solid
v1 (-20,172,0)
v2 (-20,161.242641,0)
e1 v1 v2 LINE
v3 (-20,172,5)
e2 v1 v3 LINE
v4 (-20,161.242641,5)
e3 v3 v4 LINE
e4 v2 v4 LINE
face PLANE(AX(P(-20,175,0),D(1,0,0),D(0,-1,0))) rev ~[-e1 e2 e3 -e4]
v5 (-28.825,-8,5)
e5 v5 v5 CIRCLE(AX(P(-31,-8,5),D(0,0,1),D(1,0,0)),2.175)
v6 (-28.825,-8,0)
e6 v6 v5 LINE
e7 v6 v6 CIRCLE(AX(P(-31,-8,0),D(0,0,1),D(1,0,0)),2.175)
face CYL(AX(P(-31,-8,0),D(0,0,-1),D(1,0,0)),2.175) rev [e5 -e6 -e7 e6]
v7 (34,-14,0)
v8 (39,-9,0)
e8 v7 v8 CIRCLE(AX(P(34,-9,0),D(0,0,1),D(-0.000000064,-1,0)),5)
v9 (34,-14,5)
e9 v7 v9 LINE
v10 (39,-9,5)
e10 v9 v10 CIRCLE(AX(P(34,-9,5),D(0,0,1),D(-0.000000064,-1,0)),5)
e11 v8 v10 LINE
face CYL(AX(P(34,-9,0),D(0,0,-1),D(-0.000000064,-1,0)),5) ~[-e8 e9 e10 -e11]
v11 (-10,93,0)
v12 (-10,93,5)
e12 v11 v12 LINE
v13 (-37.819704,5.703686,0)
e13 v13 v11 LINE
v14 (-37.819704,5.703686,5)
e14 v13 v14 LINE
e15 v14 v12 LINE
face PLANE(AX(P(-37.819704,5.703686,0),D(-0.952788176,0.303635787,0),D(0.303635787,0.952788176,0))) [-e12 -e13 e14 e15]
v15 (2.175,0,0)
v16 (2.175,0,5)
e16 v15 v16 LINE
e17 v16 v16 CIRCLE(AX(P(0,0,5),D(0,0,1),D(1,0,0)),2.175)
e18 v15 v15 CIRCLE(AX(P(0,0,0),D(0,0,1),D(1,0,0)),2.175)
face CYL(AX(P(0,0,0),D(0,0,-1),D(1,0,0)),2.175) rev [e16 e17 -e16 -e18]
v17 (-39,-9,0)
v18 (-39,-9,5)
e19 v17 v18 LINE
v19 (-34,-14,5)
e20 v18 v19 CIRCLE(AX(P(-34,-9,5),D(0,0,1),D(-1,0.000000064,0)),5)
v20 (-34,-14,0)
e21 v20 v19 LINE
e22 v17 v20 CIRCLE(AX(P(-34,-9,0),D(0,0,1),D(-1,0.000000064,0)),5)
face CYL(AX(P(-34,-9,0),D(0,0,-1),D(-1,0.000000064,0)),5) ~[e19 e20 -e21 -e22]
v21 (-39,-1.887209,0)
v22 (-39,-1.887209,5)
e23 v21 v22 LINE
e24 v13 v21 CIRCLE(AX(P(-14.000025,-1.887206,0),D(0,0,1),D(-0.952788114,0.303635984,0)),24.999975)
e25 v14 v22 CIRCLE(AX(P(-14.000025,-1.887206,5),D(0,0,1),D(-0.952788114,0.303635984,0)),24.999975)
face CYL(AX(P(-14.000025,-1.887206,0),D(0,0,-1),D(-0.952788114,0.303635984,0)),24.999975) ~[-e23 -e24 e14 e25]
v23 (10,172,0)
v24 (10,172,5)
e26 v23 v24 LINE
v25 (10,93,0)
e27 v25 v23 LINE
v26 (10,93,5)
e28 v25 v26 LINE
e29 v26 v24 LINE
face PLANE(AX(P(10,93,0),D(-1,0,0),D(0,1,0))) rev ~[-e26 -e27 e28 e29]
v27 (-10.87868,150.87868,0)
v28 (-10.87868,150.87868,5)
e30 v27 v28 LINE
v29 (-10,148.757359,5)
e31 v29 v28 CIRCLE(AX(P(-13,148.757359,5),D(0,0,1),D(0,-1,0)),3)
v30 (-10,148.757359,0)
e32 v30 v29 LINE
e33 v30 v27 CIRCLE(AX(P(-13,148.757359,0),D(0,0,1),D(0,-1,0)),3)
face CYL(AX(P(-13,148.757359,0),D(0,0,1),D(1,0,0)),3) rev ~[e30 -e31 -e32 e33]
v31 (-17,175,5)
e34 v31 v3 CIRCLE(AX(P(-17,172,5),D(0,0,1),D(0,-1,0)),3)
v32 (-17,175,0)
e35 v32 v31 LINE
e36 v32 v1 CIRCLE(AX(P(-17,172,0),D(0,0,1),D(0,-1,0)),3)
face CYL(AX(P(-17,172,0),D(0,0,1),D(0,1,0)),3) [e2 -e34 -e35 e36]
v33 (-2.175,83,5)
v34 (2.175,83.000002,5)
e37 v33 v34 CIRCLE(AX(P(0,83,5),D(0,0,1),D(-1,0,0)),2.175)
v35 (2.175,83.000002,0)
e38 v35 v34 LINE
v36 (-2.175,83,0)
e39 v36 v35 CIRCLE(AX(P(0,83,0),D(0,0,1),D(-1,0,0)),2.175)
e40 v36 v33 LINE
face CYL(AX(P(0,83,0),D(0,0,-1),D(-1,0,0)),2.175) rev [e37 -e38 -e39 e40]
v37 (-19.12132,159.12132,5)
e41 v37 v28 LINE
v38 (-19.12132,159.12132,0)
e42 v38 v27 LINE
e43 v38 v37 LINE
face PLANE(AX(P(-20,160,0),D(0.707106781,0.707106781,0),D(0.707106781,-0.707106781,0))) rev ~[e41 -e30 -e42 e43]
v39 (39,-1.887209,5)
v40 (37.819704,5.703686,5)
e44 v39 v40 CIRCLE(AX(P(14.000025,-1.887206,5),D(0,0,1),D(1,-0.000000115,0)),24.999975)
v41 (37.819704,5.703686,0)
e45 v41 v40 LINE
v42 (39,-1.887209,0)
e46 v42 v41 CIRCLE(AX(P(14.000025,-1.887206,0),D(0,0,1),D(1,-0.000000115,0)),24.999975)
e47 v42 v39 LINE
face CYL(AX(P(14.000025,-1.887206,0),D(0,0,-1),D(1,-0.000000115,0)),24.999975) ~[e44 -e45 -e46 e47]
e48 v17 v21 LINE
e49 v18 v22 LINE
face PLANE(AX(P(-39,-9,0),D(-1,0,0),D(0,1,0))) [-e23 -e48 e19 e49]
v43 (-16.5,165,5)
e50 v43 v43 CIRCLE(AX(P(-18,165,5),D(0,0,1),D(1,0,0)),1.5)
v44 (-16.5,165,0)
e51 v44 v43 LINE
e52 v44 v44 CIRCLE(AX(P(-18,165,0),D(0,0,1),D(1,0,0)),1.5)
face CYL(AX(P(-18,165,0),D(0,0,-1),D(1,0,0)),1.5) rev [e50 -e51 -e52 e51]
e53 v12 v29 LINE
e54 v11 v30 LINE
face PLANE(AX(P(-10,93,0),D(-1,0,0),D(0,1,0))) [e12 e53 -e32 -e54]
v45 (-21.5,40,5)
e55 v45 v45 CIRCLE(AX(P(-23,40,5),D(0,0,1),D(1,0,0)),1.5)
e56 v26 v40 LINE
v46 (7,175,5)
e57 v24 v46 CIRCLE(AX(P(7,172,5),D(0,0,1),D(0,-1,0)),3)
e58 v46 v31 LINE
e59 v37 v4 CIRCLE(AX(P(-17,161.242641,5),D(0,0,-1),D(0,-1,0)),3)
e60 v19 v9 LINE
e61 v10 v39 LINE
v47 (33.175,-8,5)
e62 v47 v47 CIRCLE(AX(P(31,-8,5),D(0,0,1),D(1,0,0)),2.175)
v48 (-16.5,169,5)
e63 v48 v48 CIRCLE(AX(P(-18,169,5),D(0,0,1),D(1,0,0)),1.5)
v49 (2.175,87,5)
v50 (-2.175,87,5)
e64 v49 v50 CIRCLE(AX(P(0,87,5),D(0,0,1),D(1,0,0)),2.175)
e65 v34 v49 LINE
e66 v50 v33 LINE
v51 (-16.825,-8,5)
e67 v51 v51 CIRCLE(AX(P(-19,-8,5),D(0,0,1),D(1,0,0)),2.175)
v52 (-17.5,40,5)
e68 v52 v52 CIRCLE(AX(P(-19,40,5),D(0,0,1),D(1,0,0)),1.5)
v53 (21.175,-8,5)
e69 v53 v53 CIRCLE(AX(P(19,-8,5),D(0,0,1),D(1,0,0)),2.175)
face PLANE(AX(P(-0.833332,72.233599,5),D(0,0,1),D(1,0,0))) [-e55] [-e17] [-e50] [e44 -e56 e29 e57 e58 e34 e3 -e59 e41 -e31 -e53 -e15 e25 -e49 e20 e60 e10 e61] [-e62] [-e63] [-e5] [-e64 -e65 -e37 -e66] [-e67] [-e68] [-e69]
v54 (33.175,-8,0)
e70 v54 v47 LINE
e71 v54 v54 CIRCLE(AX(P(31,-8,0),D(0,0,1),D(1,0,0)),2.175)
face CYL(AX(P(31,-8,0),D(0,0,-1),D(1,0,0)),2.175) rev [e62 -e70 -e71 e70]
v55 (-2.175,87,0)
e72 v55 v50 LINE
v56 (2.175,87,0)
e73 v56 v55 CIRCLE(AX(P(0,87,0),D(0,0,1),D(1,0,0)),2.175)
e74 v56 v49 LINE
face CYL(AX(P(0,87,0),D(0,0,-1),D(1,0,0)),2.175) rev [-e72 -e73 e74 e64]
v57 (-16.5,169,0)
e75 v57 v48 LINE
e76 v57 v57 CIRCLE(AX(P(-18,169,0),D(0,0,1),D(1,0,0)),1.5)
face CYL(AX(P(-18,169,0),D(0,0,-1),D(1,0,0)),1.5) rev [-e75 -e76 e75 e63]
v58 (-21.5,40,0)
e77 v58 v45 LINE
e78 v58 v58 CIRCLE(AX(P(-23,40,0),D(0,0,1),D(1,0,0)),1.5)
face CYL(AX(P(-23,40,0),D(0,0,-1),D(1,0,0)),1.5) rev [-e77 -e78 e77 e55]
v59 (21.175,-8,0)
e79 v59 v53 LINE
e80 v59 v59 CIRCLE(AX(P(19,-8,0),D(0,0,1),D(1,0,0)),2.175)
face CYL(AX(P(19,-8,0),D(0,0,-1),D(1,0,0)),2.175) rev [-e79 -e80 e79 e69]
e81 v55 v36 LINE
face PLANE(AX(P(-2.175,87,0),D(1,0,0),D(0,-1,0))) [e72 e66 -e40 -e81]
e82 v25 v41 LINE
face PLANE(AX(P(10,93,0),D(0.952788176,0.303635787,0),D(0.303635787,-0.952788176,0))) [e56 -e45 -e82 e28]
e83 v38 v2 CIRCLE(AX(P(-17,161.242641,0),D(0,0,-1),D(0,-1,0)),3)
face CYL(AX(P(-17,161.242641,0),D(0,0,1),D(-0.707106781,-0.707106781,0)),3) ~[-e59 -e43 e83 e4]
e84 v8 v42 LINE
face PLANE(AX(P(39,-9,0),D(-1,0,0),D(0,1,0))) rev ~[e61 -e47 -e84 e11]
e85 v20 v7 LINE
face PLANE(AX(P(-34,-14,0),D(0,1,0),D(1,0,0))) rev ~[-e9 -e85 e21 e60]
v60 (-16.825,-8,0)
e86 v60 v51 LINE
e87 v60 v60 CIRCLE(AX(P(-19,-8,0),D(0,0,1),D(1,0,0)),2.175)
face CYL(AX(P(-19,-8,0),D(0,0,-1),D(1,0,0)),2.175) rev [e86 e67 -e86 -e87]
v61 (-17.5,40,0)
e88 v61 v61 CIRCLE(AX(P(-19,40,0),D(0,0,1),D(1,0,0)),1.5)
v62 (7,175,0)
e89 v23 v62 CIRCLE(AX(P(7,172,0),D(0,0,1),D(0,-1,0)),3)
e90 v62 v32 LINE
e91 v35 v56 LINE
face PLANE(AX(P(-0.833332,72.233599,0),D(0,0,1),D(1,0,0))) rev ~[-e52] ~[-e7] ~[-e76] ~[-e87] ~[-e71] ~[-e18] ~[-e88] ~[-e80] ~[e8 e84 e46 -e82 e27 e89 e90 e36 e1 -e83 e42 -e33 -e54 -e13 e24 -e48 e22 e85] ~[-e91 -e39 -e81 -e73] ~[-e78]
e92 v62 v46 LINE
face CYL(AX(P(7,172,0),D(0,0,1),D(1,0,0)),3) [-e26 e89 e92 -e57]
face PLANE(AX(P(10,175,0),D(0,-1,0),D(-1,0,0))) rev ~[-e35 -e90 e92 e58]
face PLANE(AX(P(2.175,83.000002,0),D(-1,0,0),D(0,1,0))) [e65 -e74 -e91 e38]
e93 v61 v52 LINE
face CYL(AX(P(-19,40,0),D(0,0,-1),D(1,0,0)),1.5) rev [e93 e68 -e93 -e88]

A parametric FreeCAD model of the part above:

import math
import FreeCAD as App
import Part
import Sketcher
Q = App.Units.Quantity


def edges_at(feature, points):
    """Names of the edges that pass closest to the given points."""
    edges = feature.Shape.Edges
    near = lambda p: min(range(len(edges)), key=lambda i: edges[i].distToShape(Part.Vertex(*p))[0])
    return sorted({f"Edge{near(p) + 1}" for p in points})

doc = App.newDocument("Part")
body = doc.addObject("PartDesign::Body", "Body")

# Sketch on XY plane
sketch1 = body.newObject("Sketcher::SketchObject", "Sketch")
sketch1.AttachmentSupport = (doc.getObject("XY_Plane"), [""])
sketch1.MapMode = "FlatFace"
sketch1.addGeometry([
    Part.LineSegment(App.Vector(-34, -14, 0), App.Vector(34, -14, 0)),  # 0
    Part.ArcOfCircle(Part.Circle(App.Vector(34, -9, 0), App.Vector(0, 0, 1), 5), math.radians(-90), math.radians(0)),  # 1
    Part.LineSegment(App.Vector(39, -9, 0), App.Vector(39, -1.9, 0)),  # 2
    Part.ArcOfCircle(Part.Circle(App.Vector(14, -1.9, 0), App.Vector(0, 0, 1), 25), math.radians(0), math.radians(17.68)),  # 3
    Part.LineSegment(App.Vector(37.8, 5.7, 0), App.Vector(10, 93, 0)),  # 4
    Part.LineSegment(App.Vector(10, 93, 0), App.Vector(10, 175, 0)),  # 5
    Part.LineSegment(App.Vector(10, 175, 0), App.Vector(-20, 175, 0)),  # 6
    Part.LineSegment(App.Vector(-20, 175, 0), App.Vector(-20, 160, 0)),  # 7
    Part.LineSegment(App.Vector(-20, 160, 0), App.Vector(-10, 150, 0)),  # 8
    Part.LineSegment(App.Vector(-10, 150, 0), App.Vector(-10, 93, 0)),  # 9
    Part.LineSegment(App.Vector(-10, 93, 0), App.Vector(-37.8, 5.7, 0)),  # 10
    Part.ArcOfCircle(Part.Circle(App.Vector(-14, -1.9, 0), App.Vector(0, 0, 1), 25), math.radians(162.32), math.radians(180)),  # 11
    Part.LineSegment(App.Vector(-39, -1.9, 0), App.Vector(-39, -9, 0)),  # 12
    Part.ArcOfCircle(Part.Circle(App.Vector(-34, -9, 0), App.Vector(0, 0, 1), 5), math.radians(180), math.radians(270)),  # 13
    Part.Circle(App.Vector(-31, -8, 0), App.Vector(0, 0, 1), 2.2),  # 14
    Part.Circle(App.Vector(-19, -8, 0), App.Vector(0, 0, 1), 2.2),  # 15
    Part.Circle(App.Vector(-23, 40, 0), App.Vector(0, 0, 1), 1.5),  # 16
    Part.Circle(App.Vector(-19, 40, 0), App.Vector(0, 0, 1), 1.5),  # 17
    Part.Circle(App.Vector(0, 0, 0), App.Vector(0, 0, 1), 2.2),  # 18
    Part.Circle(App.Vector(19, -8, 0), App.Vector(0, 0, 1), 2.2),  # 19
    Part.Circle(App.Vector(31, -8, 0), App.Vector(0, 0, 1), 2.2),  # 20
    Part.Circle(App.Vector(-18, 165, 0), App.Vector(0, 0, 1), 1.5),  # 21
    Part.Circle(App.Vector(-18, 169, 0), App.Vector(0, 0, 1), 1.5),  # 22
    Part.ArcOfCircle(Part.Circle(App.Vector(0, 87, 0), App.Vector(0, 0, 1), 2.2), math.radians(0), math.radians(180)),  # 23
    Part.LineSegment(App.Vector(2.2, 87, 0), App.Vector(2.2, 83, 0)),  # 24
    Part.ArcOfCircle(Part.Circle(App.Vector(0, 83, 0), App.Vector(0, 0, 1), 2.2), math.radians(180), math.radians(360)),  # 25
    Part.LineSegment(App.Vector(-2.2, 83, 0), App.Vector(-2.2, 87, 0)),  # 26
], False)
sketch1.addConstraint([
    Sketcher.Constraint("Tangent", 0, 2, 1, 1),
    Sketcher.Constraint("Tangent", 1, 2, 2, 1),
    Sketcher.Constraint("Tangent", 2, 2, 3, 1),
    Sketcher.Constraint("Tangent", 3, 2, 4, 1),
    Sketcher.Constraint("Coincident", 4, 2, 5, 1),
    Sketcher.Constraint("Coincident", 5, 2, 6, 1),
    Sketcher.Constraint("Coincident", 6, 2, 7, 1),
    Sketcher.Constraint("Coincident", 7, 2, 8, 1),
    Sketcher.Constraint("Coincident", 8, 2, 9, 1),
    Sketcher.Constraint("Coincident", 9, 2, 10, 1),
    Sketcher.Constraint("Tangent", 10, 2, 11, 1),
    Sketcher.Constraint("Tangent", 11, 2, 12, 1),
    Sketcher.Constraint("Tangent", 12, 2, 13, 1),
    Sketcher.Constraint("Tangent", 13, 2, 0, 1),
    Sketcher.Constraint("Tangent", 23, 1, 24, 1),
    Sketcher.Constraint("Tangent", 24, 2, 25, 2),
    Sketcher.Constraint("Tangent", 25, 1, 26, 1),
    Sketcher.Constraint("Tangent", 26, 2, 23, 2),
    Sketcher.Constraint("Horizontal", 0),
    Sketcher.Constraint("Vertical", 2),
    Sketcher.Constraint("Vertical", 5),
    Sketcher.Constraint("Horizontal", 6),
    Sketcher.Constraint("Vertical", 7),
    Sketcher.Constraint("Vertical", 9),
    Sketcher.Constraint("Vertical", 12),
    Sketcher.Constraint("Vertical", 24),
    Sketcher.Constraint("Vertical", 26),
    Sketcher.Constraint("Coincident", 18, 3, -1, 1),
    Sketcher.Constraint("Equal", 3, 11),
    Sketcher.Constraint("Equal", 1, 13),
    Sketcher.Constraint("Equal", 14, 15),
    Sketcher.Constraint("Equal", 16, 17),
    Sketcher.Constraint("Equal", 15, 18),
    Sketcher.Constraint("Equal", 18, 19),
    Sketcher.Constraint("Equal", 19, 20),
    Sketcher.Constraint("Equal", 17, 21),
    Sketcher.Constraint("Equal", 21, 22),
    Sketcher.Constraint("Equal", 20, 23),
    Sketcher.Constraint("Symmetric", 3, 3, 11, 3, -2),
    Sketcher.Constraint("Symmetric", 15, 3, 19, 3, -2),
    Sketcher.Constraint("Symmetric", 14, 3, 20, 3, -2),
    Sketcher.Constraint("Symmetric", 4, 2, 9, 2, -2),
    Sketcher.Constraint("PointOnObject", 23, 3, -2),
    Sketcher.Constraint("Horizontal", 14, 3, 15, 3),
    Sketcher.Constraint("Horizontal", 16, 3, 17, 3),
    Sketcher.Constraint("Vertical", 15, 3, 17, 3),
    Sketcher.Constraint("Vertical", 21, 3, 22, 3),
    Sketcher.Constraint("Diameter", 16, Q("3 mm")),
    Sketcher.Constraint("Radius", 1, Q("5 mm")),
    Sketcher.Constraint("Diameter", 14, Q("4.35 mm")),
    Sketcher.Constraint("DistanceX", 0, 1, 0, 2, Q("68 mm")),
    Sketcher.Constraint("DistanceX", 6, 2, 6, 1, Q("30 mm")),
    Sketcher.Constraint("DistanceY", 5, 1, 5, 2, Q("82 mm")),
    Sketcher.Constraint("DistanceY", 7, 2, 7, 1, Q("15 mm")),
    Sketcher.Constraint("DistanceY", 9, 2, 9, 1, Q("57 mm")),
    Sketcher.Constraint("DistanceY", 24, 2, 24, 1, Q("3.999998 mm")),
    Sketcher.Constraint("Angle", 8, Q("-45 deg")),
    Sketcher.Constraint("DistanceY", 1, 3, -1, 1, Q("9 mm")),
    Sketcher.Constraint("DistanceX", 14, 3, -1, 1, Q("31 mm")),
    Sketcher.Constraint("DistanceY", 14, 3, -1, 1, Q("8 mm")),
    Sketcher.Constraint("DistanceX", 15, 3, -1, 1, Q("19 mm")),
    Sketcher.Constraint("DistanceX", 16, 3, -1, 1, Q("23 mm")),
    Sketcher.Constraint("DistanceY", -1, 1, 16, 3, Q("40 mm")),
    Sketcher.Constraint("DistanceX", 21, 3, -1, 1, Q("18 mm")),
    Sketcher.Constraint("DistanceY", -1, 1, 21, 3, Q("165 mm")),
    Sketcher.Constraint("DistanceY", -1, 1, 22, 3, Q("169 mm")),
    Sketcher.Constraint("DistanceY", -1, 1, 23, 3, Q("87 mm")),
    Sketcher.Constraint("DistanceY", -1, 1, 4, 2, Q("93 mm")),
    Sketcher.Constraint("Radius", 3, Q("24.999975 mm")),
    Sketcher.Constraint("DistanceY", 2, 1, 2, 2, Q("7.112791 mm")),
])
pad1 = body.newObject("PartDesign::Pad", "Pad")
pad1.Profile = sketch1
pad1.Length = 5
doc.recompute()

fillet = body.newObject("PartDesign::Fillet", "Fillet")
fillet.Base = (pad1, edges_at(pad1, [
    (-20, 175, 2.5),
    (10, 175, 2.5),
    (-10, 150, 2.5),
    (-20, 160, 2.5),
]))
fillet.Radius = 3

doc.recompute()
